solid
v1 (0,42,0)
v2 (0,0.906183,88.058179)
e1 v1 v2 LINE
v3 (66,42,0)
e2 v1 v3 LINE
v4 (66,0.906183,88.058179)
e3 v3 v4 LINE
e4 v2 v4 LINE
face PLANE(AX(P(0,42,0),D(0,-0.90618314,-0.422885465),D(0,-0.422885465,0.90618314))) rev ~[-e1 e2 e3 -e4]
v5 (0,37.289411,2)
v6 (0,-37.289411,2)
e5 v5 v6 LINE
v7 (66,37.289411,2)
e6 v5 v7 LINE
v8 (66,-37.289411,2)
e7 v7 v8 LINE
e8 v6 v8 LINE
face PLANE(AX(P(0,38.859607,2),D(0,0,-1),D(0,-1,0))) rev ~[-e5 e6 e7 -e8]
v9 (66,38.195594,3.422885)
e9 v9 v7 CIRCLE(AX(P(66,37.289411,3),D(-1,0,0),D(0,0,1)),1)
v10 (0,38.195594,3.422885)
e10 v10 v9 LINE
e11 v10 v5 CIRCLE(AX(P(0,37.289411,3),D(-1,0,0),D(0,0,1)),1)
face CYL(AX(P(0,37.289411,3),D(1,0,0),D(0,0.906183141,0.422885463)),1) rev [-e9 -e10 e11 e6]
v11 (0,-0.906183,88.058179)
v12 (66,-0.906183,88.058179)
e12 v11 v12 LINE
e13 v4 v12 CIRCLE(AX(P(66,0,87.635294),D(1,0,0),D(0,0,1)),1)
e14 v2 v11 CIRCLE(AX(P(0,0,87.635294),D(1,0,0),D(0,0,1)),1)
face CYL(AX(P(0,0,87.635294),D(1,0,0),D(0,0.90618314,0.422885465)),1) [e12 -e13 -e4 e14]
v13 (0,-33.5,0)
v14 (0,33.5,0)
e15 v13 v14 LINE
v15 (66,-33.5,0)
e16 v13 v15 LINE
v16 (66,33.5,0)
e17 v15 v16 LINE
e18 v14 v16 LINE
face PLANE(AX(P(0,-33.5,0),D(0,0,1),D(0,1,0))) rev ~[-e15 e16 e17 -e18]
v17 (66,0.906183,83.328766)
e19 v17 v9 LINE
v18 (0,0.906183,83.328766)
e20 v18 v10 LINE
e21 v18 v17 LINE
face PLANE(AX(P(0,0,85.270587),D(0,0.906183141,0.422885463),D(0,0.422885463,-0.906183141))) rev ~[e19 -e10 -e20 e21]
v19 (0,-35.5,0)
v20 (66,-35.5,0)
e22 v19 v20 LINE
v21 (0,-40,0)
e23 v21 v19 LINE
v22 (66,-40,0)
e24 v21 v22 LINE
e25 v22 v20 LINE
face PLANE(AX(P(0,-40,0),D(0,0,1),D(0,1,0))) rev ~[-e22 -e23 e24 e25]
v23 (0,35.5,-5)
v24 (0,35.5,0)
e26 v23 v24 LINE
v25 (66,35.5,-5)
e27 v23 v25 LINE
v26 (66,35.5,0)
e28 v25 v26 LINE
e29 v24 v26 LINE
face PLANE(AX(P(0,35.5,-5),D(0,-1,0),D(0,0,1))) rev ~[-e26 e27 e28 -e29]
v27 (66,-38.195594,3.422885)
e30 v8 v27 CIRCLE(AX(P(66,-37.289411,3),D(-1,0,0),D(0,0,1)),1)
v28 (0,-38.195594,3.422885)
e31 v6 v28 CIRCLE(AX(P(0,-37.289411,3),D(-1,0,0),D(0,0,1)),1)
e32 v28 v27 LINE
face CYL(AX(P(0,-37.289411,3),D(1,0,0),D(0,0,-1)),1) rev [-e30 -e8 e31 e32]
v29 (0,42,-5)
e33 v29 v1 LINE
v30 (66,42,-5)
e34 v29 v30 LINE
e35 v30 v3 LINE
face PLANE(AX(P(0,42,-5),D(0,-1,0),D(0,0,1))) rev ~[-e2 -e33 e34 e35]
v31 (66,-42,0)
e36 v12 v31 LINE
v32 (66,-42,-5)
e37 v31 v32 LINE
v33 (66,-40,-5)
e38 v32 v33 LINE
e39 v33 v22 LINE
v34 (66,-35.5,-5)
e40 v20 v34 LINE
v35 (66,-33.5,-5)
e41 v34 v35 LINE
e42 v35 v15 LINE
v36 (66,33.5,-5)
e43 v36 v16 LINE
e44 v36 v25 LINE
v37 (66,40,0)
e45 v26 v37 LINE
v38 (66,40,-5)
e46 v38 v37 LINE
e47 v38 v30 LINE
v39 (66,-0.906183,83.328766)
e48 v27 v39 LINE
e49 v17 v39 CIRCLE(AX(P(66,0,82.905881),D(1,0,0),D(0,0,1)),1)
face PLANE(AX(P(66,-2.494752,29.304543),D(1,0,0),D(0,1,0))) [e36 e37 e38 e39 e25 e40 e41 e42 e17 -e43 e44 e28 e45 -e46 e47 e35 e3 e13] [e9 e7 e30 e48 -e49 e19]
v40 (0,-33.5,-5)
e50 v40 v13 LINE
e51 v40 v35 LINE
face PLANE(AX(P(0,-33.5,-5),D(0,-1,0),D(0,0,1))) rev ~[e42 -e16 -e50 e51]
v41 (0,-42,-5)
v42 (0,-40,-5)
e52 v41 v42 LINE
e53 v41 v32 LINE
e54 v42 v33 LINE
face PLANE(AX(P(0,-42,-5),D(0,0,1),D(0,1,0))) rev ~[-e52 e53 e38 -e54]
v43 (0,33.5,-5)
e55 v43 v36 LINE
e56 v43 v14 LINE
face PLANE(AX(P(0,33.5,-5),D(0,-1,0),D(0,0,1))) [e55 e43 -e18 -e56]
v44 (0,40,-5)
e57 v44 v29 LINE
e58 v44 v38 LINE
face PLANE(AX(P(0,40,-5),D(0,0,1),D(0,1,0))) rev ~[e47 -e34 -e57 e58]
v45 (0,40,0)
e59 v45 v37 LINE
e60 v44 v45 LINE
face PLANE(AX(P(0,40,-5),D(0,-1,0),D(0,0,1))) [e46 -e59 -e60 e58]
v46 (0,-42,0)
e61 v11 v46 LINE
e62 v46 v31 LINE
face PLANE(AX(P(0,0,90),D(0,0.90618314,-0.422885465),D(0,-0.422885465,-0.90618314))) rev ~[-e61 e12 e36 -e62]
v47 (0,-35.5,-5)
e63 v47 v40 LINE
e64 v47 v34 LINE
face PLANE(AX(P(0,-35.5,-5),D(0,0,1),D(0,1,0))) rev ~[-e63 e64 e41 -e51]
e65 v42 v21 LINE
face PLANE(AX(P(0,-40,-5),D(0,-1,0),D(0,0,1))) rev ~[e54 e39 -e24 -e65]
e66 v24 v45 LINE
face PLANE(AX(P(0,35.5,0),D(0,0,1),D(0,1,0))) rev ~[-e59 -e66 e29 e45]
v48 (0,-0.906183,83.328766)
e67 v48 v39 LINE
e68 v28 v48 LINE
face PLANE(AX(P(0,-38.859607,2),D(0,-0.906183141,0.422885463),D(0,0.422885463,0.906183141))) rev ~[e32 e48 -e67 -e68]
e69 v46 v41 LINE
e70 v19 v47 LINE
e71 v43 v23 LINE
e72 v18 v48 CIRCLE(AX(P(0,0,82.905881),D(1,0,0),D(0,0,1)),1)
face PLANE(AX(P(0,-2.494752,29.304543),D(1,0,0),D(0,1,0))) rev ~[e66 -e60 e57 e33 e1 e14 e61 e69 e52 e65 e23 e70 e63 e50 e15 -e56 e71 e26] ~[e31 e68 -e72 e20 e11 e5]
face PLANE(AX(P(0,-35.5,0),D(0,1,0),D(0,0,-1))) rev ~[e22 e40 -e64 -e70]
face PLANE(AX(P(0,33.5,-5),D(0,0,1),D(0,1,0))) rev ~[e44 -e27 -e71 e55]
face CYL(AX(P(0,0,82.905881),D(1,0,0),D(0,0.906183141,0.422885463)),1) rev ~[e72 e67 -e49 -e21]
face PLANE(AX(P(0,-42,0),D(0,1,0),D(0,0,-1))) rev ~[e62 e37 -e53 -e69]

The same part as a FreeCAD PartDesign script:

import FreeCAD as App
import Part
import Sketcher
Q = App.Units.Quantity


def edges_at(feature, points):
    """Names of the edges that pass closest to the given points."""
    edges = feature.Shape.Edges
    near = lambda p: min(range(len(edges)), key=lambda i: edges[i].distToShape(Part.Vertex(*p))[0])
    return sorted({f"Edge{near(p) + 1}" for p in points})


def add_polygon(sketch, points):
    """Adds a closed chain of lines whose ends are joined by coincident constraints."""
    first, n = sketch.GeometryCount, len(points)
    for a, b in zip(points, points[1:] + points[:1]):
        sketch.addGeometry(Part.LineSegment(App.Vector(*a, 0), App.Vector(*b, 0)), False)
    for i in range(n):
        sketch.addConstraint(Sketcher.Constraint("Coincident", first + i, 2, first + (i + 1) % n, 1))

doc = App.newDocument("Part")
body = doc.addObject("PartDesign::Body", "Body")

# Sketch on YZ plane
sketch1 = body.newObject("Sketcher::SketchObject", "Sketch")
sketch1.AttachmentSupport = (doc.getObject("YZ_Plane"), [""])
sketch1.MapMode = "FlatFace"
add_polygon(sketch1, [(-33.5, 0), (33.5, 0), (33.5, -5), (35.5, -5), (35.5, 0), (40, 0), (40, -5), (42, -5), (42, 0), (0, 90), (-42, 0), (-42, -5), (-40, -5), (-40, 0), (-35.5, 0), (-35.5, -5), (-33.5, -5)])  # lines 0-16
add_polygon(sketch1, [(0, 85.3), (38.9, 2), (-38.9, 2)])  # lines 17-19
sketch1.addConstraint([
    Sketcher.Constraint("Horizontal", 0),
    Sketcher.Constraint("Vertical", 1),
    Sketcher.Constraint("Horizontal", 2),
    Sketcher.Constraint("Vertical", 3),
    Sketcher.Constraint("Horizontal", 4),
    Sketcher.Constraint("Vertical", 5),
    Sketcher.Constraint("Horizontal", 6),
    Sketcher.Constraint("Vertical", 7),
    Sketcher.Constraint("Vertical", 10),
    Sketcher.Constraint("Horizontal", 11),
    Sketcher.Constraint("Vertical", 12),
    Sketcher.Constraint("Horizontal", 13),
    Sketcher.Constraint("Vertical", 14),
    Sketcher.Constraint("Horizontal", 15),
    Sketcher.Constraint("Vertical", 16),
    Sketcher.Constraint("Horizontal", 18),
    Sketcher.Constraint("Symmetric", 7, 2, 9, 2, -1, 1),
    Sketcher.Constraint("Symmetric", 4, 2, 12, 2, -1, 1),
    Sketcher.Constraint("Symmetric", 0, 2, 16, 2, -1, 1),
    Sketcher.Constraint("Symmetric", 3, 2, 13, 2, -2),
    Sketcher.Constraint("PointOnObject", 7, 2, -1),
    Sketcher.Constraint("PointOnObject", 8, 2, -2),
    Sketcher.Constraint("PointOnObject", 19, 2, -2),
    Sketcher.Constraint("Parallel", 8, 17),
    Sketcher.Constraint("Parallel", 9, 19),
    Sketcher.Constraint("Horizontal", 2, 2, 5, 2),
    Sketcher.Constraint("Horizontal", 6, 2, 10, 2),
    Sketcher.Constraint("Horizontal", 11, 2, 14, 2),
    Sketcher.Constraint("Equal", 2, 6),
    Sketcher.Constraint("DistanceX", 0, 1, 0, 2, Q("67 mm")),
    Sketcher.Constraint("DistanceX", 2, 1, 2, 2, Q("2 mm")),
    Sketcher.Constraint("DistanceY", 1, 2, 1, 1, Q("5 mm")),
    Sketcher.Constraint("DistanceX", 4, 1, 4, 2, Q("4.5 mm")),
    Sketcher.Constraint("DistanceY", -1, 1, 8, 2, Q("90 mm")),
    Sketcher.Constraint("DistanceY", -1, 1, 17, 2, Q("2 mm")),
    Sketcher.Constraint("DistanceX", 18, 2, 18, 1, Q("77.719214 mm")),
])
pad1 = body.newObject("PartDesign::Pad", "Pad")
pad1.Profile = sketch1
pad1.Length = 66
doc.recompute()

fillet = body.newObject("PartDesign::Fillet", "Fillet")
fillet.Base = (pad1, edges_at(pad1, [(33, 0, 90)]))
fillet.Radius = 1
doc.recompute()

fillet2 = body.newObject("PartDesign::Fillet", "Fillet001")
fillet2.Base = (fillet, edges_at(fillet, [(33, 0, 85.271), (33, 38.86, 2), (33, -38.86, 2)]))
fillet2.Radius = 1

doc.recompute()
